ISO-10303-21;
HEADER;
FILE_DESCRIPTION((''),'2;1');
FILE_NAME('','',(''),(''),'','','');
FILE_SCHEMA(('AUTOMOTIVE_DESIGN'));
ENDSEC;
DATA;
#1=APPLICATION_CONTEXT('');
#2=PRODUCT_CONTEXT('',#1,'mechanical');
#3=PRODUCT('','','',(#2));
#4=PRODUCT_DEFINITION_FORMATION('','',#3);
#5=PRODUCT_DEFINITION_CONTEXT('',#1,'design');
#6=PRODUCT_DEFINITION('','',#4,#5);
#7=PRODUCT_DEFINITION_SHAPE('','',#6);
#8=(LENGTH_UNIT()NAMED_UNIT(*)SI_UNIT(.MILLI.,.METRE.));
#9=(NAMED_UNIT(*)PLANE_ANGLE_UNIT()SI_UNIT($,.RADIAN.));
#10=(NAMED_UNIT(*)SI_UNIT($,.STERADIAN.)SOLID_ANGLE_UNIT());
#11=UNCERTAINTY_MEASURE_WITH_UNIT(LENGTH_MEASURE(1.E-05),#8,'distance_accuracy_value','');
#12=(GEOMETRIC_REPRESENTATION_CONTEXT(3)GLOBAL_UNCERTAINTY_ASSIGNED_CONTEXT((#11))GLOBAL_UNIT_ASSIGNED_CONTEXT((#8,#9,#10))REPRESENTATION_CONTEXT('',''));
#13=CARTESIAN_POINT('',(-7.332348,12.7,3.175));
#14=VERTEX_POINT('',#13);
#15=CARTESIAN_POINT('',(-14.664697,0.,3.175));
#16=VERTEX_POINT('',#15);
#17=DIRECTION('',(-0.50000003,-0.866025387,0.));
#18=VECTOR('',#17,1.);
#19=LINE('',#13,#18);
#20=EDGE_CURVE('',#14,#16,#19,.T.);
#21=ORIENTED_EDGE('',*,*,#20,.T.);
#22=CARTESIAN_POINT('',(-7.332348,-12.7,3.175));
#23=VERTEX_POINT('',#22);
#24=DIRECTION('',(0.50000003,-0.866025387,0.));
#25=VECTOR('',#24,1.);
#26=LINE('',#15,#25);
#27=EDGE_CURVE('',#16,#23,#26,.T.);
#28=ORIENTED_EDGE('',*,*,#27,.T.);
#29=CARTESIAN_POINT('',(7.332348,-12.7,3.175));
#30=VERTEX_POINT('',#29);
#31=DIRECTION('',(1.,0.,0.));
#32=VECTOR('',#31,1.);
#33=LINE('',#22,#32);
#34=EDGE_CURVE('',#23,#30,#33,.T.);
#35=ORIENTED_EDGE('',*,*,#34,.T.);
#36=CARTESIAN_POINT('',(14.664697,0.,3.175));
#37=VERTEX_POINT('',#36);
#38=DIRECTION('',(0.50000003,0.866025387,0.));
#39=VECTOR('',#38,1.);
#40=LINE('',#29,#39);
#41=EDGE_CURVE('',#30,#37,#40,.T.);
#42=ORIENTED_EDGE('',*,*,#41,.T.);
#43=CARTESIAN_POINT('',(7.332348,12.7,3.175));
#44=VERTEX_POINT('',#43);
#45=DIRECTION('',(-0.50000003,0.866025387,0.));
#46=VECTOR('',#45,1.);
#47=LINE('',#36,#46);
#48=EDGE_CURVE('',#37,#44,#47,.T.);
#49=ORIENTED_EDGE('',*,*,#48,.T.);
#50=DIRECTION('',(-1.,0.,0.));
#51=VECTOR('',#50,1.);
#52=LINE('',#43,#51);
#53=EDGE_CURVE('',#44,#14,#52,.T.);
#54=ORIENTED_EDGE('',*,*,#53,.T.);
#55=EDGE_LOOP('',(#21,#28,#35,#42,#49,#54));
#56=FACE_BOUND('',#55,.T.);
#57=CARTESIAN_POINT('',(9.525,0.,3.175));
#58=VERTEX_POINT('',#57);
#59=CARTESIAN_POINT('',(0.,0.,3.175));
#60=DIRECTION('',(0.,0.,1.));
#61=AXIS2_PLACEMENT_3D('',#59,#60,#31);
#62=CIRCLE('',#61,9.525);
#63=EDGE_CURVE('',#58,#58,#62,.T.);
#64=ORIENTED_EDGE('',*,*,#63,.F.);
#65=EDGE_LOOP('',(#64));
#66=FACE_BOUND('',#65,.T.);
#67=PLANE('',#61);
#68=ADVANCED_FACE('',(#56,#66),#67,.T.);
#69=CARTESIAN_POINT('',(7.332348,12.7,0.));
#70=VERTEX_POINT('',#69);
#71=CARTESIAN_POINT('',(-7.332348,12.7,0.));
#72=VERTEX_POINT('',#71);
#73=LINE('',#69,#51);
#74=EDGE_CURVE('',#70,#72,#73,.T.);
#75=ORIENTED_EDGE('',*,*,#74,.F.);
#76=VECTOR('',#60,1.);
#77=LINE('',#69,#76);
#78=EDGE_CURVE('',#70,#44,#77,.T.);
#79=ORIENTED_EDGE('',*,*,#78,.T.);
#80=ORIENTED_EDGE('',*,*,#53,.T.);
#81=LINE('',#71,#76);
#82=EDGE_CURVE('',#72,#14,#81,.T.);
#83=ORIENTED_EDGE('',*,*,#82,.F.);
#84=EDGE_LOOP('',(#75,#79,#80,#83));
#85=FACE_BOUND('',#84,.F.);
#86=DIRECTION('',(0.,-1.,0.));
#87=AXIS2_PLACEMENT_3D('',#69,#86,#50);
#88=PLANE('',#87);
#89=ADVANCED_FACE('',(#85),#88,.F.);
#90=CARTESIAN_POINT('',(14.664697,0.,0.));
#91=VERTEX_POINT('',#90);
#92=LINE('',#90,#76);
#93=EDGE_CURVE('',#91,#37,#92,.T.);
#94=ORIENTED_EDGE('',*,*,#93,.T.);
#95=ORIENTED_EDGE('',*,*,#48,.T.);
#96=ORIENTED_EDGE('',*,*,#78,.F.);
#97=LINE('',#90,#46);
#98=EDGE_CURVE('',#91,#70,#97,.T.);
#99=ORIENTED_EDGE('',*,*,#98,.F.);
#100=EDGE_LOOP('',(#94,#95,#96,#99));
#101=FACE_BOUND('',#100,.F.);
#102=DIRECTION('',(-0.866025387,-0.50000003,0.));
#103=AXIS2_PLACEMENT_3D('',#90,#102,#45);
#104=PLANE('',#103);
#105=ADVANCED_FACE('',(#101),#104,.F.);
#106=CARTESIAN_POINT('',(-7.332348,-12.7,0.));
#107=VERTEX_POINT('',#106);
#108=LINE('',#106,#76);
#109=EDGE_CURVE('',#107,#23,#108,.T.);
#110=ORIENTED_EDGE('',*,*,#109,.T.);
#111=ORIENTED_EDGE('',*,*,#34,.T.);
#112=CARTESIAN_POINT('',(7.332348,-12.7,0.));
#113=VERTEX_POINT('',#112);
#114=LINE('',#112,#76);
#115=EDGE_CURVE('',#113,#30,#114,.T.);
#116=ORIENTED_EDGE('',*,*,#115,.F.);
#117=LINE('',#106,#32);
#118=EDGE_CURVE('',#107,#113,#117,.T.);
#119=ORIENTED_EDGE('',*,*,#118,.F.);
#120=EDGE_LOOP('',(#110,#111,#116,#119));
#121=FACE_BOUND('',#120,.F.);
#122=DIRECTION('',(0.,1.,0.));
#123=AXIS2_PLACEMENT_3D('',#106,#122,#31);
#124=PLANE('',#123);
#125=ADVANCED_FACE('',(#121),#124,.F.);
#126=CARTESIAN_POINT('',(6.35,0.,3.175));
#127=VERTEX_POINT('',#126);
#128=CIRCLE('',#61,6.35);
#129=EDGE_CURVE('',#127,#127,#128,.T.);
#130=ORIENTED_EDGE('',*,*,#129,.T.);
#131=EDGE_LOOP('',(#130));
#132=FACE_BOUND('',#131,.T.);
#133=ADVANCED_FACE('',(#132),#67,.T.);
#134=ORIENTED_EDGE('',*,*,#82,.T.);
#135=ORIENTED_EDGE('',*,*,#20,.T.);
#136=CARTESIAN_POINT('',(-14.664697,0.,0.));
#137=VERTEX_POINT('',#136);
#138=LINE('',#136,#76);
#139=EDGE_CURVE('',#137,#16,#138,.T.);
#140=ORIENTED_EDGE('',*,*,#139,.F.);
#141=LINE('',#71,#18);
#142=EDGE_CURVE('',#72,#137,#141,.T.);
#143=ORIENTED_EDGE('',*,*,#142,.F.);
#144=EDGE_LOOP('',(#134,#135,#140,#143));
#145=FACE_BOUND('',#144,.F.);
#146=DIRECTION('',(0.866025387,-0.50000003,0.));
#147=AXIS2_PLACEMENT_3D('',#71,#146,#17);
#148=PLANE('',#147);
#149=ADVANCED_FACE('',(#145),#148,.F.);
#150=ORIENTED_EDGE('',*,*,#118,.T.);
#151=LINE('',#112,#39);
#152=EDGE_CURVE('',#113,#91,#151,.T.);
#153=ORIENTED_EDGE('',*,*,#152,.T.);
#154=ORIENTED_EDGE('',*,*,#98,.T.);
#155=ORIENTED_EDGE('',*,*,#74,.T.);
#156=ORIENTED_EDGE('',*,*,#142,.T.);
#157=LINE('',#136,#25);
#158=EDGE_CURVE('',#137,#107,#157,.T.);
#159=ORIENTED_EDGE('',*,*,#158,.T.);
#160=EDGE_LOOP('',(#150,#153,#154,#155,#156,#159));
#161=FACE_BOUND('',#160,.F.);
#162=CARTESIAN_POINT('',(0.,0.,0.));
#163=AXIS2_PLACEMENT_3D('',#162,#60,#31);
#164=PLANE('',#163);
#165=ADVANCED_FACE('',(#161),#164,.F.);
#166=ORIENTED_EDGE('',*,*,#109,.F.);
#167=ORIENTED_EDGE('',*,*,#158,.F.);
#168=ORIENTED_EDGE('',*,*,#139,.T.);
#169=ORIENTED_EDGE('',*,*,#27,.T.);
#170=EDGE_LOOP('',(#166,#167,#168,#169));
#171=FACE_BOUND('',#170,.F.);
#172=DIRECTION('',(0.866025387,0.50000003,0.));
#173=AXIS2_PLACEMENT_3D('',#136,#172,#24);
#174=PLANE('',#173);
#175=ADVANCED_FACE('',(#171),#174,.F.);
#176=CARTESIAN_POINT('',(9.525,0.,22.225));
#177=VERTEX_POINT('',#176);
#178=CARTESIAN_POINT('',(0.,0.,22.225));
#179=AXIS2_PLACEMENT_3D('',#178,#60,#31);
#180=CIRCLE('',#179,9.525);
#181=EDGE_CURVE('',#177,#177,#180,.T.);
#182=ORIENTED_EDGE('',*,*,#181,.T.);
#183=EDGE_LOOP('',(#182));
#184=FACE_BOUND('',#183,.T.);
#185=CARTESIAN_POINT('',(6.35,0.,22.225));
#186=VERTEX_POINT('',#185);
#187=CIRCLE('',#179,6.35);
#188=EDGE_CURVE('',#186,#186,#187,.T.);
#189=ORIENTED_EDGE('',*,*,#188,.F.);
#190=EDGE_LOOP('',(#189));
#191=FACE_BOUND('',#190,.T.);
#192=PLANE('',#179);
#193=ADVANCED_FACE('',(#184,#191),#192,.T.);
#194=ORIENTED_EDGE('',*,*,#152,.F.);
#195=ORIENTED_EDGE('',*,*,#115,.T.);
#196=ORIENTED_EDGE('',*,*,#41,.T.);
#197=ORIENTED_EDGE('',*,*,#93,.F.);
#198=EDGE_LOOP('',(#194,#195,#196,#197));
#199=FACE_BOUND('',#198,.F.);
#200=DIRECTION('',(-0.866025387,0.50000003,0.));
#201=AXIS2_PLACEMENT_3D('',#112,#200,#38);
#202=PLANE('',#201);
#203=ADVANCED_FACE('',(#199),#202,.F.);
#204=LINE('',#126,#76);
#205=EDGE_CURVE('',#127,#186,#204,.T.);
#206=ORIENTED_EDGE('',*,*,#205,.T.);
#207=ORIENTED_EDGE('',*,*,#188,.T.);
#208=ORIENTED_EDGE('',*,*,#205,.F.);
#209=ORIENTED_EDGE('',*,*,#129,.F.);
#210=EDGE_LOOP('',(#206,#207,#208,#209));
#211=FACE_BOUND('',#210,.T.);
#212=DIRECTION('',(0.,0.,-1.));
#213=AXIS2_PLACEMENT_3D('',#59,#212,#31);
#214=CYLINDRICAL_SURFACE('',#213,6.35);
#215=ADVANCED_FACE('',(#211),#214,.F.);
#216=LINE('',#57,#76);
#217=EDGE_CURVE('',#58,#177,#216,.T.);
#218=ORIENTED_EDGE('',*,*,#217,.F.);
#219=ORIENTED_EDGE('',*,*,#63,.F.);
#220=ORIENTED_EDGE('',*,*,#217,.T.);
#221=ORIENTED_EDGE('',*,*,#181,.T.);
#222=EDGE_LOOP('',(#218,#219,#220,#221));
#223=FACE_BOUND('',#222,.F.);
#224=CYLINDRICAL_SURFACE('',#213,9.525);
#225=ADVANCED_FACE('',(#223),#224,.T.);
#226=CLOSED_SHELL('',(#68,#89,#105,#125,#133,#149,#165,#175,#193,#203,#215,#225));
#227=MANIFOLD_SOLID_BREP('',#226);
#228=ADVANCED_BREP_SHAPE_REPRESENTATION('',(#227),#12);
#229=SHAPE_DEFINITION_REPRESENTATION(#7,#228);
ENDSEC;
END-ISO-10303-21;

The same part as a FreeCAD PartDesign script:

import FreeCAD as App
import Part
import Sketcher
from FreeCAD import Vector
Q = App.Units.Quantity

doc = App.newDocument("Part")
body = doc.addObject("PartDesign::Body", "Body")

sketch1 = body.newObject("Sketcher::SketchObject", "Sketch")
sketch1.AttachmentSupport = (doc.getObject("XY_Plane"), [""])
sketch1.MapMode = "FlatFace"
sketch1.addGeometry([
    Part.LineSegment(Vector(-7, -13, 0), Vector(7, -13, 0)),
    Part.LineSegment(Vector(7, -13, 0), Vector(15, 0, 0)),
    Part.LineSegment(Vector(15, 0, 0), Vector(7, 13, 0)),
    Part.LineSegment(Vector(7, 13, 0), Vector(-7, 13, 0)),
    Part.LineSegment(Vector(-7, 13, 0), Vector(-15, 0, 0)),
    Part.LineSegment(Vector(-15, 0, 0), Vector(-7, -13, 0)),
], False)
sketch1.addConstraint([
    Sketcher.Constraint("Coincident", 0, 2, 1, 1),
    Sketcher.Constraint("Coincident", 1, 2, 2, 1),
    Sketcher.Constraint("Coincident", 2, 2, 3, 1),
    Sketcher.Constraint("Coincident", 3, 2, 4, 1),
    Sketcher.Constraint("Coincident", 4, 2, 5, 1),
    Sketcher.Constraint("Coincident", 5, 2, 0, 1),
    Sketcher.Constraint("Horizontal", 0),
    Sketcher.Constraint("Horizontal", 3),
    Sketcher.Constraint("Symmetric", 0, 2, 3, 2, -1, 1),
    Sketcher.Constraint("Symmetric", 1, 2, 4, 2, -1, 1),
    Sketcher.Constraint("PointOnObject", 1, 2, -1),
    Sketcher.Constraint("Parallel", 2, 5),
    Sketcher.Constraint("Vertical", 0, 2, 2, 2),
    Sketcher.Constraint("Angle", 1, Q("59.999998 deg")),
    Sketcher.Constraint("DistanceY", 0, 2, 2, 2, Q("1 in")),
    Sketcher.Constraint("DistanceX", 0, 1, 0, 2, 14.664696),
])
pad1 = body.newObject("PartDesign::Pad", "Pad")
pad1.Profile = sketch1
pad1.Length = Q("0.125 in")

sketch2 = body.newObject("Sketcher::SketchObject", "Sketch001")
sketch2.AttachmentSupport = (doc.getObject("XY_Plane"), [""])
sketch2.MapMode = "FlatFace"
sketch2.AttachmentOffset = App.Placement(Vector(0, 0, 0.125 * 25.4), App.Rotation())
sketch2.addGeometry([
    Part.Circle(Vector(0, 0, 0), Vector(0, 0, 1), 10),
    Part.Circle(Vector(0, 0, 0), Vector(0, 0, 1), 6),
], False)
sketch2.addConstraint([
    Sketcher.Constraint("Coincident", 0, 3, -1, 1),
    Sketcher.Constraint("Coincident", 1, 3, -1, 1),
    Sketcher.Constraint("Diameter", 1, Q("0.5 in")),
    Sketcher.Constraint("Diameter", 0, Q("0.75 in")),
])
pad2 = body.newObject("PartDesign::Pad", "Pad001")
pad2.Profile = sketch2
pad2.Length = Q("0.75 in")

doc.recompute()
